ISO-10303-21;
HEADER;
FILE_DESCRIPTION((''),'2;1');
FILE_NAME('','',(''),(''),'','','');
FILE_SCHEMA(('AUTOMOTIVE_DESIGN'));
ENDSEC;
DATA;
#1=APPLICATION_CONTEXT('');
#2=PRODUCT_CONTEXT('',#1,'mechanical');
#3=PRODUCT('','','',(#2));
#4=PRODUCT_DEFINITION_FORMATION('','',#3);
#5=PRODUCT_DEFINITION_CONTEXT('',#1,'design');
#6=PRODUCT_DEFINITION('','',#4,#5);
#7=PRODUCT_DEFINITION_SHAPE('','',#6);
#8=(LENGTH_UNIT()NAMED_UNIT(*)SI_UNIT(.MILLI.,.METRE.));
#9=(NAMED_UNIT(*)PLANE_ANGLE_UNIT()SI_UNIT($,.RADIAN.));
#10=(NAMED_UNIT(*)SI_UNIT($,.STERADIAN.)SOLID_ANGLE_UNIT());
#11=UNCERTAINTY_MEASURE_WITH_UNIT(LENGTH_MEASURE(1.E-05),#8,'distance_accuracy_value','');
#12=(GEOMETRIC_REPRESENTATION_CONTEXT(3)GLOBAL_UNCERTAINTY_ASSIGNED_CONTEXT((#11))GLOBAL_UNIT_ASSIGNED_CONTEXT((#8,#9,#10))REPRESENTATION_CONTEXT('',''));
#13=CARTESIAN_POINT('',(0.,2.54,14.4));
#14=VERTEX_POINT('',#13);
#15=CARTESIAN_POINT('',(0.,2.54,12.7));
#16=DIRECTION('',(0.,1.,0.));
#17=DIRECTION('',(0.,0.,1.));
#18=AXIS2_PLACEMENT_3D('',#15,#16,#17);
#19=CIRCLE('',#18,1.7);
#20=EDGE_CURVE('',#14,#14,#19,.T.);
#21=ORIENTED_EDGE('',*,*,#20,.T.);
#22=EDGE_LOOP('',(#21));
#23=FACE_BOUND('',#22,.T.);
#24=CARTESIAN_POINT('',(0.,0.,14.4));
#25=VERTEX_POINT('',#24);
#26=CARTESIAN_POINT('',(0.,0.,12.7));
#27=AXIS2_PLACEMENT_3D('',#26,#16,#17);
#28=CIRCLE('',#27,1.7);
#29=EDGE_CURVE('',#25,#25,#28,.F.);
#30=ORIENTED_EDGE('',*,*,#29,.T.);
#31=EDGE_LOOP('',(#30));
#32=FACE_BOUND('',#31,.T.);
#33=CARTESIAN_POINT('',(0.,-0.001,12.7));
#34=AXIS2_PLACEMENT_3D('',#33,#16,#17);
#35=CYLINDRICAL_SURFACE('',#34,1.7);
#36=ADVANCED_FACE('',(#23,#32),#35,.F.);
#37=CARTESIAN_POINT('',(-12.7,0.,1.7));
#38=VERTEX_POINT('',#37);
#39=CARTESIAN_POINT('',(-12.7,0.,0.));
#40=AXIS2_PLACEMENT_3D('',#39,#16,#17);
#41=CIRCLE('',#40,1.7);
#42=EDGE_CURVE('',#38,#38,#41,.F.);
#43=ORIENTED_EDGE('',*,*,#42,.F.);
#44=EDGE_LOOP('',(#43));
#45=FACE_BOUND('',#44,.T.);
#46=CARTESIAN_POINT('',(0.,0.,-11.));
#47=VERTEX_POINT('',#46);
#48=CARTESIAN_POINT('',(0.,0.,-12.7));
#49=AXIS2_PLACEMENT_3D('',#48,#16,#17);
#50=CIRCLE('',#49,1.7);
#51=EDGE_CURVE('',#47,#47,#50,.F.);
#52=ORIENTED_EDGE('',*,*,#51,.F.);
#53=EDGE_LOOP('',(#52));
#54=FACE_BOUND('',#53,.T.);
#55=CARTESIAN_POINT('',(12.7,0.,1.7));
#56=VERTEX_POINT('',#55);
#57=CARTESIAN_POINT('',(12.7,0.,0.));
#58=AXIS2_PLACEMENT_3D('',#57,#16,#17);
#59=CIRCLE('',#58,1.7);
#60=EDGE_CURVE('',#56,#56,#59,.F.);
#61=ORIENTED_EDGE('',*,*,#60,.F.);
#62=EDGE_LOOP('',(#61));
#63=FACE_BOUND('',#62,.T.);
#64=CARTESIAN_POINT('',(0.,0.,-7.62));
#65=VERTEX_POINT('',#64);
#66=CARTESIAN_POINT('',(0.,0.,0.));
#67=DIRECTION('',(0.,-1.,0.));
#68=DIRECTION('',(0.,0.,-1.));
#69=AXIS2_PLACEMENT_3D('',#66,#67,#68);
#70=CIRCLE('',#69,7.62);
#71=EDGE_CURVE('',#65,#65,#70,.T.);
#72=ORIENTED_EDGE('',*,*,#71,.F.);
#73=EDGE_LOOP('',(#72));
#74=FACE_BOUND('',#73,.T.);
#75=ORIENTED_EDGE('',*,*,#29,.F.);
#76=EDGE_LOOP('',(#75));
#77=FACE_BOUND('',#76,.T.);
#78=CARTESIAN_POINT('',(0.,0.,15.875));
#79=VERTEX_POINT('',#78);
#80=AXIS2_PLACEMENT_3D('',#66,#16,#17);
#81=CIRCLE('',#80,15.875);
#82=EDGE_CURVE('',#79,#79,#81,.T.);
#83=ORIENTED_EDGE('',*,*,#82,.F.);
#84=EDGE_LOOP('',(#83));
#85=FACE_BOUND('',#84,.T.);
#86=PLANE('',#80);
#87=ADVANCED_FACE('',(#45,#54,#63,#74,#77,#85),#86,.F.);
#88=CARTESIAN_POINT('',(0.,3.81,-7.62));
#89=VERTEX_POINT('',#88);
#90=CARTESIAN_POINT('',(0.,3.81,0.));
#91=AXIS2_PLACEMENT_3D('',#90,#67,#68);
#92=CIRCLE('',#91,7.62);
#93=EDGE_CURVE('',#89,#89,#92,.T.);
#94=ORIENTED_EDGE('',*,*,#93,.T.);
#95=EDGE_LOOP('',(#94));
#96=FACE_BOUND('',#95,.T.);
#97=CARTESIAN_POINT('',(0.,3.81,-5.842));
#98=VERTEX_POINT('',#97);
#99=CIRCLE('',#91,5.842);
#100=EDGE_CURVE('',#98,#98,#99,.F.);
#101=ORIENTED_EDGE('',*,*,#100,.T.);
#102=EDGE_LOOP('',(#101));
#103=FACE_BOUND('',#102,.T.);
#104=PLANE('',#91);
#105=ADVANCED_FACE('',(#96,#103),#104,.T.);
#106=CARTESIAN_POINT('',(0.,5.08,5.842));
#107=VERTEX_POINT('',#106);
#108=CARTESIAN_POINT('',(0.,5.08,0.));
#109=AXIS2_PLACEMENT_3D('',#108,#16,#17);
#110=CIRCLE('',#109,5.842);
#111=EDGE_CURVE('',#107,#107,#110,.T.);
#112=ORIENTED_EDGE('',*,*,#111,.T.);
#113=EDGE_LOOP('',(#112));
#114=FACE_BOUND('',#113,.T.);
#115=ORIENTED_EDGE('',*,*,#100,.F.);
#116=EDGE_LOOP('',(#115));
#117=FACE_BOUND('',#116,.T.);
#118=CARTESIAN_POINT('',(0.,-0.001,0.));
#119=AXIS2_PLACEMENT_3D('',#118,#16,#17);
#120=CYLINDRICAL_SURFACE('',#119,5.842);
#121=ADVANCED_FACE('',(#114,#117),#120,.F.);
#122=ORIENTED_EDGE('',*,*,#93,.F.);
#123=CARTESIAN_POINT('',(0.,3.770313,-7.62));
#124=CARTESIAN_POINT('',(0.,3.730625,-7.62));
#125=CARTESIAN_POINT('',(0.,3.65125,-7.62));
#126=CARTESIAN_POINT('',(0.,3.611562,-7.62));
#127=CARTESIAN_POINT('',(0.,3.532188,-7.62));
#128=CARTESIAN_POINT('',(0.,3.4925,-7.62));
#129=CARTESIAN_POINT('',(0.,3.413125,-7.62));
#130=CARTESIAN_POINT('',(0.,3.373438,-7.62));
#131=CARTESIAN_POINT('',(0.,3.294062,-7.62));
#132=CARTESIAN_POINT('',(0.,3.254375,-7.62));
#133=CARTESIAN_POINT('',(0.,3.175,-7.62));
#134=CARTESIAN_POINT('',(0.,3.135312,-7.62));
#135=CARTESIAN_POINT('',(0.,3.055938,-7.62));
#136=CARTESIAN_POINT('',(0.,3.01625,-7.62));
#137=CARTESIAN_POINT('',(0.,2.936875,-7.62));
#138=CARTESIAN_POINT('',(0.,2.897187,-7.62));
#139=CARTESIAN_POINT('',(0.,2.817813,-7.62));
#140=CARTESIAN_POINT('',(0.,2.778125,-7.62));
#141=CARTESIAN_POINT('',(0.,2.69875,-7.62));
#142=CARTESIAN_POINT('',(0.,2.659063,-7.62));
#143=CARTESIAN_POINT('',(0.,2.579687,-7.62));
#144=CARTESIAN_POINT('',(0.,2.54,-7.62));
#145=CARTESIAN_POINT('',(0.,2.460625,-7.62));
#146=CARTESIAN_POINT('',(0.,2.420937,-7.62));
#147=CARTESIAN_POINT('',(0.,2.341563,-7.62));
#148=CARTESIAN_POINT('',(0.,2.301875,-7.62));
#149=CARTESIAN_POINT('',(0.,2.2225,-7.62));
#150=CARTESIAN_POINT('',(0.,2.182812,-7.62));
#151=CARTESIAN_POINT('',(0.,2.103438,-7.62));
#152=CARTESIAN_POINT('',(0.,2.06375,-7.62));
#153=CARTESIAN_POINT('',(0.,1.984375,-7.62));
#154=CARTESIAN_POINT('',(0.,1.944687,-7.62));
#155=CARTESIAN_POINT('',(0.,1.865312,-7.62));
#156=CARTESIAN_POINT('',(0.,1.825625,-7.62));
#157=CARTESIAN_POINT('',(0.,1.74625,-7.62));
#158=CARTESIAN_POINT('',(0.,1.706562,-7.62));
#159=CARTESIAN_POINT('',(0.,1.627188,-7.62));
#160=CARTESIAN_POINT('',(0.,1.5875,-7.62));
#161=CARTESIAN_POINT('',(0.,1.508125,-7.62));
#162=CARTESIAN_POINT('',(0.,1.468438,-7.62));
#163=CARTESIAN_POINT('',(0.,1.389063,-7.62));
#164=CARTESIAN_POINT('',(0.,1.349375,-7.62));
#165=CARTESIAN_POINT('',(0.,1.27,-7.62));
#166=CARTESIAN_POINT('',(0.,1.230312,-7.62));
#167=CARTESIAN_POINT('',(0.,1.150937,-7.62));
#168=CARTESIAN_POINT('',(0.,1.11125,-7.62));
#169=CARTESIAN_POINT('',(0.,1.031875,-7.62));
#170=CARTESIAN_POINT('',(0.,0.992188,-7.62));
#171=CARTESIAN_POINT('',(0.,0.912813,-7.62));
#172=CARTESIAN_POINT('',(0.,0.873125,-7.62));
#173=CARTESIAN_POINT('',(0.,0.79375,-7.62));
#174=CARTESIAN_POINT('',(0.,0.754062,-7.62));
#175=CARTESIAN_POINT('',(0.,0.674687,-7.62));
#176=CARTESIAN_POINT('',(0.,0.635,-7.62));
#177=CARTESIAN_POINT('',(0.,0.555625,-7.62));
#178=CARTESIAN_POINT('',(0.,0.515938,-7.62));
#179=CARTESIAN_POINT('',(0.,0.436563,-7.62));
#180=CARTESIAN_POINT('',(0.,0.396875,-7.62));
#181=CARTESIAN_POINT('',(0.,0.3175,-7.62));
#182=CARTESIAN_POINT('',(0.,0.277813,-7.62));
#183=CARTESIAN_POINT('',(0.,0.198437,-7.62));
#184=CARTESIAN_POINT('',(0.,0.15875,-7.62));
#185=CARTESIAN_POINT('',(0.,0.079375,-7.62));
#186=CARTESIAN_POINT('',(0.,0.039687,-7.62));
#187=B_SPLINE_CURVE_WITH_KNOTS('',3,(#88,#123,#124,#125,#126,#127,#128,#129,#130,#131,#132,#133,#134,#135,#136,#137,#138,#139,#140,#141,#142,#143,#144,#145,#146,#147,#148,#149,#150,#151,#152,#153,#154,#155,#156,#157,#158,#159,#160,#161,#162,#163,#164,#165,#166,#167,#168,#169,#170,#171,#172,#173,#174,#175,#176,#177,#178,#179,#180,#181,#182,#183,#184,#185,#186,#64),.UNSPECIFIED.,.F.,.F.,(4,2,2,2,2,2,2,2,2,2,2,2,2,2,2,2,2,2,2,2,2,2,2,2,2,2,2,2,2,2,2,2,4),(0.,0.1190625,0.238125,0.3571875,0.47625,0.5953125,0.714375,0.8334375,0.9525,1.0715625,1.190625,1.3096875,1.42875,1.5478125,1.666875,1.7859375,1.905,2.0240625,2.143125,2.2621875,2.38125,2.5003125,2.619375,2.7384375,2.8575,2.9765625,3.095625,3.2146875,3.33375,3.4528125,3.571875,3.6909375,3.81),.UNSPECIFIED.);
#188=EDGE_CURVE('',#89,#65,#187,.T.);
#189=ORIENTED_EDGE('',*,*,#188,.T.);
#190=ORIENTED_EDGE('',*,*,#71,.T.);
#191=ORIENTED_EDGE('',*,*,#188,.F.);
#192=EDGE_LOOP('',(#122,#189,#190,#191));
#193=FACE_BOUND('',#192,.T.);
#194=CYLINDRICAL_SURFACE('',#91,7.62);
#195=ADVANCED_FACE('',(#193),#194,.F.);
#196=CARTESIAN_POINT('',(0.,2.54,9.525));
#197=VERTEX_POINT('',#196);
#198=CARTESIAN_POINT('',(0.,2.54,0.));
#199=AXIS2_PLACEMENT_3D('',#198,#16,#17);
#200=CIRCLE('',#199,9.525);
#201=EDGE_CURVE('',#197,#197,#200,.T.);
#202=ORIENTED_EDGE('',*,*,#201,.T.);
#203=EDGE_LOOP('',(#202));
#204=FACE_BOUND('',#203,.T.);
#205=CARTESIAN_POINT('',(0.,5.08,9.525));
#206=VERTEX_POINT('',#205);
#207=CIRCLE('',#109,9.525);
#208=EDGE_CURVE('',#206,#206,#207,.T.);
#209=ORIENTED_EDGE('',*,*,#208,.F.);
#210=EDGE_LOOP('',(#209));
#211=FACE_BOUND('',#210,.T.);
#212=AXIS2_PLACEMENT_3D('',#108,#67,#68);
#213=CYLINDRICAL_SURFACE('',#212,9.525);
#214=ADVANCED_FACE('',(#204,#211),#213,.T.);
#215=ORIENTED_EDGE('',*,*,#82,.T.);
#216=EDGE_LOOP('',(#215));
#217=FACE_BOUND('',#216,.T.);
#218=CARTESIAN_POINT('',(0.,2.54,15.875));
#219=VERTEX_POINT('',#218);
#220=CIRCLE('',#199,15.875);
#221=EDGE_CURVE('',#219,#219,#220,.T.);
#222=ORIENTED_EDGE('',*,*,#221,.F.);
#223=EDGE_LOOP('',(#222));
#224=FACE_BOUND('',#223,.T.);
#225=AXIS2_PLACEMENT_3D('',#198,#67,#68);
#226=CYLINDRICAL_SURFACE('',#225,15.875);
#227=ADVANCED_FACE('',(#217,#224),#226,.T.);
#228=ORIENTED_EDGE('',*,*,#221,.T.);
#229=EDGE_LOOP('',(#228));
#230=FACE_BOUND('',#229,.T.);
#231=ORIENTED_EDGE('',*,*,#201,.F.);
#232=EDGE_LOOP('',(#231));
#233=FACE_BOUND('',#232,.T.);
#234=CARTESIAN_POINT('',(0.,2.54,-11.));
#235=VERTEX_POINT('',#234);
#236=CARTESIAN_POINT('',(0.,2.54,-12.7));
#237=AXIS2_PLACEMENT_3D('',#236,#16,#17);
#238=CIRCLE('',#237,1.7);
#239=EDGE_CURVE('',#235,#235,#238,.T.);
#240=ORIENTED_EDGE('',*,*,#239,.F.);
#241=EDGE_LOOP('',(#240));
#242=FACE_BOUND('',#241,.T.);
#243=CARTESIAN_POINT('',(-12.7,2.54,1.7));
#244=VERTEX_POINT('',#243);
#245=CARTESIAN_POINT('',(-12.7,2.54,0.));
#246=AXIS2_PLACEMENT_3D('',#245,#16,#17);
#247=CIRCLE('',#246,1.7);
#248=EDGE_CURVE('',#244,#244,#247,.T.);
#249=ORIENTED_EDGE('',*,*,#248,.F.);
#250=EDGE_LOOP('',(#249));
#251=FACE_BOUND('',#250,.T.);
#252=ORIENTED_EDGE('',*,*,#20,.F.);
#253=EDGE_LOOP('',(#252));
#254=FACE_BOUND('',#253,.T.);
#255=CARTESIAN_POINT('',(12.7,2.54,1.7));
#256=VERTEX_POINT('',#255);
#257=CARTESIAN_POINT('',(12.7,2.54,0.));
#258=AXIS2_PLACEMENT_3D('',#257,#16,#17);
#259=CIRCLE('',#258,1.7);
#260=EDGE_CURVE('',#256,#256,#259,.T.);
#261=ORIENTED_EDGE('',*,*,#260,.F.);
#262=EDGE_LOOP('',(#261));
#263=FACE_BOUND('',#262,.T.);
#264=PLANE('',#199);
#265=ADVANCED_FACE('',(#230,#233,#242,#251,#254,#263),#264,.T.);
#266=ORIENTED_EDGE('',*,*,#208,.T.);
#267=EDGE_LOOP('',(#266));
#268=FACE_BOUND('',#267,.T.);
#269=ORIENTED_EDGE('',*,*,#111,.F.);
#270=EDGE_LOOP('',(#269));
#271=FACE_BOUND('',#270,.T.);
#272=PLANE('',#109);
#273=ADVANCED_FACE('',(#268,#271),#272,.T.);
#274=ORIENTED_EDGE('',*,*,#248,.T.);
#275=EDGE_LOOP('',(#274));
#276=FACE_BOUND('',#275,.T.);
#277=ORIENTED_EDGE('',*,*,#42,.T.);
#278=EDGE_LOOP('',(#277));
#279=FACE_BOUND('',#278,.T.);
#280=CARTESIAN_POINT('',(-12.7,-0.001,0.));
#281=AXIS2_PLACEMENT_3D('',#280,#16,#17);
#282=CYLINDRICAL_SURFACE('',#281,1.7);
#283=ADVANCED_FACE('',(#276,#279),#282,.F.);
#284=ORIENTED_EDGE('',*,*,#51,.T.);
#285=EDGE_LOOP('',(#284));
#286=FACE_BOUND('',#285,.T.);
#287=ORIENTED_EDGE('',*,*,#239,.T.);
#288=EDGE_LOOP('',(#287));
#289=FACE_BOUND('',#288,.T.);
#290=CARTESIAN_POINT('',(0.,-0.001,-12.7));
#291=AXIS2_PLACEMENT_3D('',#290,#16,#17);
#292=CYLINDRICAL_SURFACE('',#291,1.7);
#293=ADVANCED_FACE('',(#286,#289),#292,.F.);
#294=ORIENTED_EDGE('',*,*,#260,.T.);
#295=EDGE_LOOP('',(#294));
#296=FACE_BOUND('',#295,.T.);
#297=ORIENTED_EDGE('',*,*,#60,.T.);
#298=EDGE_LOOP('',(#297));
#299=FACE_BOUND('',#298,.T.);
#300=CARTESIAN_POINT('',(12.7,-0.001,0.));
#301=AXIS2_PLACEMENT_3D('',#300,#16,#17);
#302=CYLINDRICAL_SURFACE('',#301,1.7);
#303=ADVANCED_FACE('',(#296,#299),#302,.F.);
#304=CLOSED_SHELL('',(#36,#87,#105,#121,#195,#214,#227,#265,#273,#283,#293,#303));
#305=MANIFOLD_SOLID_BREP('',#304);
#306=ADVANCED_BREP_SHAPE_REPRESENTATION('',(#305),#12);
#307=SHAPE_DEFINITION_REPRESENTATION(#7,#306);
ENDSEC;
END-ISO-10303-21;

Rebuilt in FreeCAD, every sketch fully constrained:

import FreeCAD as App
import Part
import Sketcher
from FreeCAD import Vector
Q = App.Units.Quantity

doc = App.newDocument("Part")
params = doc.addObject("Spreadsheet::Sheet", "Params")
for row, (alias, value) in enumerate([
    ("sketch1_diameter", "1.25 in"),
    ("pad1_length", "0.1 in"),
    ("sketch2_diameter", "0.75 in"),
    ("pad2_length", "0.1 in"),
    ("sketch3_diameter", "0.6 in"),
    ("pocket1_length", "0.15 in"),
    ("sketch4_diameter", "0.46 in"),
], start=1):
    params.set(f"A{row}", alias)
    params.set(f"B{row}", "=" + value)
    params.setAlias(f"B{row}", alias)

body = doc.addObject("PartDesign::Body", "Body")

# Sketch on XZ plane
sketch1 = doc.addObject("Sketcher::SketchObject", "Sketch")
body.addObject(sketch1)
sketch1.AttachmentSupport = (doc.XZ_Plane, [""])
sketch1.MapMode = "FlatFace"
sketch1.addGeometry(Part.Circle(Vector(0, 0, 0), Vector(0, 0, 1), 15.875), False)
sketch1.addConstraint([
    Sketcher.Constraint("Coincident", 0, 3, -1, 1),
    Sketcher.Constraint("Diameter", 0, Q("1.25 in")),
])
sketch1.setExpression("Constraints[1]", "Params.sketch1_diameter")
pad1 = doc.addObject("PartDesign::Pad", "Pad")
body.addObject(pad1)
pad1.Profile = sketch1
pad1.setExpression("Length", "Params.pad1_length")
pad1.Reversed = True

# Sketch on XZ plane
sketch2 = doc.addObject("Sketcher::SketchObject", "Sketch001")
body.addObject(sketch2)
sketch2.AttachmentSupport = (doc.XZ_Plane, [""])
sketch2.MapMode = "FlatFace"
sketch2.AttachmentOffset = App.Placement(Vector(0, 0, -0.1 * 25.4), App.Rotation())
sketch2.addGeometry(Part.Circle(Vector(0, 0, 0), Vector(0, 0, 1), 9.525), False)
sketch2.addConstraint([
    Sketcher.Constraint("Coincident", 0, 3, -1, 1),
    Sketcher.Constraint("Diameter", 0, Q("0.75 in")),
])
sketch2.setExpression("Constraints[1]", "Params.sketch2_diameter")
pad2 = doc.addObject("PartDesign::Pad", "Pad001")
body.addObject(pad2)
pad2.Profile = sketch2
pad2.setExpression("Length", "Params.pad2_length")
pad2.Reversed = True

# Sketch on XZ plane
sketch3 = doc.addObject("Sketcher::SketchObject", "Sketch002")
body.addObject(sketch3)
sketch3.AttachmentSupport = (doc.XZ_Plane, [""])
sketch3.MapMode = "FlatFace"
sketch3.addGeometry(Part.Circle(Vector(0, 0, 0), Vector(0, 0, 1), 7.62), False)
sketch3.addConstraint([
    Sketcher.Constraint("Coincident", 0, 3, -1, 1),
    Sketcher.Constraint("Diameter", 0, Q("0.6 in")),
])
sketch3.setExpression("Constraints[1]", "Params.sketch3_diameter")
pocket1 = doc.addObject("PartDesign::Pocket", "Pocket")
body.addObject(pocket1)
pocket1.Profile = sketch3
pocket1.setExpression("Length", "Params.pocket1_length")

# Sketch on XZ plane
sketch4 = doc.addObject("Sketcher::SketchObject", "Sketch003")
body.addObject(sketch4)
sketch4.AttachmentSupport = (doc.XZ_Plane, [""])
sketch4.MapMode = "FlatFace"
sketch4.AttachmentOffset = App.Placement(Vector(0, 0, -0.2 * 25.4), App.Rotation())
sketch4.addGeometry(Part.Circle(Vector(0, 0, 0), Vector(0, 0, 1), 5.842), False)
sketch4.addConstraint([
    Sketcher.Constraint("Coincident", 0, 3, -1, 1),
    Sketcher.Constraint("Diameter", 0, Q("0.46 in")),
])
sketch4.setExpression("Constraints[1]", "Params.sketch4_diameter")
pocket2 = doc.addObject("PartDesign::Pocket", "Pocket001")
body.addObject(pocket2)
pocket2.Profile = sketch4
pocket2.Type = "UpToFirst"
pocket2.Reversed = True

# Sketch on XZ plane
sketch5 = doc.addObject("Sketcher::SketchObject", "Sketch004")
body.addObject(sketch5)
sketch5.AttachmentSupport = (doc.XZ_Plane, [""])
sketch5.MapMode = "FlatFace"
sketch5.AttachmentOffset = App.Placement(Vector(0, 0, -0.1 * 25.4), App.Rotation())
sketch5.addGeometry(Part.Circle(Vector(0, -12.7, 0), Vector(0, 0, 1), 1.7), False)
sketch5.addConstraint([
    Sketcher.Constraint("PointOnObject", 0, 3, -2),
    Sketcher.Constraint("DistanceY", 0, 3, -1, 1, Q("0.5 in")),
    Sketcher.Constraint("Diameter", 0, 3.4),
])
pocket3 = doc.addObject("PartDesign::Pocket", "Pocket002")
body.addObject(pocket3)
pocket3.Profile = sketch5
pocket3.Type = "UpToFirst"
pocket3.Reversed = True

# Sketch on XZ plane
sketch6 = doc.addObject("Sketcher::SketchObject", "Sketch005")
body.addObject(sketch6)
sketch6.AttachmentSupport = (doc.XZ_Plane, [""])
sketch6.MapMode = "FlatFace"
sketch6.AttachmentOffset = App.Placement(Vector(0, 0, -0.1 * 25.4), App.Rotation())
sketch6.addGeometry(Part.Circle(Vector(12.7, 0, 0), Vector(0, 0, 1), 1.7), False)
sketch6.addConstraint([
    Sketcher.Constraint("PointOnObject", 0, 3, -1),
    Sketcher.Constraint("DistanceX", -1, 1, 0, 3, Q("0.5 in")),
    Sketcher.Constraint("Diameter", 0, 3.4),
])
pocket4 = doc.addObject("PartDesign::Pocket", "Pocket003")
body.addObject(pocket4)
pocket4.Profile = sketch6
pocket4.Type = "UpToFirst"
pocket4.Reversed = True

# Sketch on XZ plane
sketch7 = doc.addObject("Sketcher::SketchObject", "Sketch006")
body.addObject(sketch7)
sketch7.AttachmentSupport = (doc.XZ_Plane, [""])
sketch7.MapMode = "FlatFace"
sketch7.AttachmentOffset = App.Placement(Vector(0, 0, -0.1 * 25.4), App.Rotation())
sketch7.addGeometry(Part.Circle(Vector(0, 12.7, 0), Vector(0, 0, 1), 1.7), False)
sketch7.addConstraint([
    Sketcher.Constraint("PointOnObject", 0, 3, -2),
    Sketcher.Constraint("DistanceY", -1, 1, 0, 3, Q("0.5 in")),
    Sketcher.Constraint("Diameter", 0, 3.4),
])
pocket5 = doc.addObject("PartDesign::Pocket", "Pocket004")
body.addObject(pocket5)
pocket5.Profile = sketch7
pocket5.Type = "UpToFirst"
pocket5.Reversed = True

# Sketch on XZ plane
sketch8 = doc.addObject("Sketcher::SketchObject", "Sketch007")
body.addObject(sketch8)
sketch8.AttachmentSupport = (doc.XZ_Plane, [""])
sketch8.MapMode = "FlatFace"
sketch8.AttachmentOffset = App.Placement(Vector(0, 0, -0.1 * 25.4), App.Rotation())
sketch8.addGeometry(Part.Circle(Vector(-12.7, 0, 0), Vector(0, 0, 1), 1.7), False)
sketch8.addConstraint([
    Sketcher.Constraint("PointOnObject", 0, 3, -1),
    Sketcher.Constraint("DistanceX", 0, 3, -1, 1, Q("0.5 in")),
    Sketcher.Constraint("Diameter", 0, 3.4),
])
pocket6 = doc.addObject("PartDesign::Pocket", "Pocket005")
body.addObject(pocket6)
pocket6.Profile = sketch8
pocket6.Type = "UpToFirst"
pocket6.Reversed = True

doc.recompute()
